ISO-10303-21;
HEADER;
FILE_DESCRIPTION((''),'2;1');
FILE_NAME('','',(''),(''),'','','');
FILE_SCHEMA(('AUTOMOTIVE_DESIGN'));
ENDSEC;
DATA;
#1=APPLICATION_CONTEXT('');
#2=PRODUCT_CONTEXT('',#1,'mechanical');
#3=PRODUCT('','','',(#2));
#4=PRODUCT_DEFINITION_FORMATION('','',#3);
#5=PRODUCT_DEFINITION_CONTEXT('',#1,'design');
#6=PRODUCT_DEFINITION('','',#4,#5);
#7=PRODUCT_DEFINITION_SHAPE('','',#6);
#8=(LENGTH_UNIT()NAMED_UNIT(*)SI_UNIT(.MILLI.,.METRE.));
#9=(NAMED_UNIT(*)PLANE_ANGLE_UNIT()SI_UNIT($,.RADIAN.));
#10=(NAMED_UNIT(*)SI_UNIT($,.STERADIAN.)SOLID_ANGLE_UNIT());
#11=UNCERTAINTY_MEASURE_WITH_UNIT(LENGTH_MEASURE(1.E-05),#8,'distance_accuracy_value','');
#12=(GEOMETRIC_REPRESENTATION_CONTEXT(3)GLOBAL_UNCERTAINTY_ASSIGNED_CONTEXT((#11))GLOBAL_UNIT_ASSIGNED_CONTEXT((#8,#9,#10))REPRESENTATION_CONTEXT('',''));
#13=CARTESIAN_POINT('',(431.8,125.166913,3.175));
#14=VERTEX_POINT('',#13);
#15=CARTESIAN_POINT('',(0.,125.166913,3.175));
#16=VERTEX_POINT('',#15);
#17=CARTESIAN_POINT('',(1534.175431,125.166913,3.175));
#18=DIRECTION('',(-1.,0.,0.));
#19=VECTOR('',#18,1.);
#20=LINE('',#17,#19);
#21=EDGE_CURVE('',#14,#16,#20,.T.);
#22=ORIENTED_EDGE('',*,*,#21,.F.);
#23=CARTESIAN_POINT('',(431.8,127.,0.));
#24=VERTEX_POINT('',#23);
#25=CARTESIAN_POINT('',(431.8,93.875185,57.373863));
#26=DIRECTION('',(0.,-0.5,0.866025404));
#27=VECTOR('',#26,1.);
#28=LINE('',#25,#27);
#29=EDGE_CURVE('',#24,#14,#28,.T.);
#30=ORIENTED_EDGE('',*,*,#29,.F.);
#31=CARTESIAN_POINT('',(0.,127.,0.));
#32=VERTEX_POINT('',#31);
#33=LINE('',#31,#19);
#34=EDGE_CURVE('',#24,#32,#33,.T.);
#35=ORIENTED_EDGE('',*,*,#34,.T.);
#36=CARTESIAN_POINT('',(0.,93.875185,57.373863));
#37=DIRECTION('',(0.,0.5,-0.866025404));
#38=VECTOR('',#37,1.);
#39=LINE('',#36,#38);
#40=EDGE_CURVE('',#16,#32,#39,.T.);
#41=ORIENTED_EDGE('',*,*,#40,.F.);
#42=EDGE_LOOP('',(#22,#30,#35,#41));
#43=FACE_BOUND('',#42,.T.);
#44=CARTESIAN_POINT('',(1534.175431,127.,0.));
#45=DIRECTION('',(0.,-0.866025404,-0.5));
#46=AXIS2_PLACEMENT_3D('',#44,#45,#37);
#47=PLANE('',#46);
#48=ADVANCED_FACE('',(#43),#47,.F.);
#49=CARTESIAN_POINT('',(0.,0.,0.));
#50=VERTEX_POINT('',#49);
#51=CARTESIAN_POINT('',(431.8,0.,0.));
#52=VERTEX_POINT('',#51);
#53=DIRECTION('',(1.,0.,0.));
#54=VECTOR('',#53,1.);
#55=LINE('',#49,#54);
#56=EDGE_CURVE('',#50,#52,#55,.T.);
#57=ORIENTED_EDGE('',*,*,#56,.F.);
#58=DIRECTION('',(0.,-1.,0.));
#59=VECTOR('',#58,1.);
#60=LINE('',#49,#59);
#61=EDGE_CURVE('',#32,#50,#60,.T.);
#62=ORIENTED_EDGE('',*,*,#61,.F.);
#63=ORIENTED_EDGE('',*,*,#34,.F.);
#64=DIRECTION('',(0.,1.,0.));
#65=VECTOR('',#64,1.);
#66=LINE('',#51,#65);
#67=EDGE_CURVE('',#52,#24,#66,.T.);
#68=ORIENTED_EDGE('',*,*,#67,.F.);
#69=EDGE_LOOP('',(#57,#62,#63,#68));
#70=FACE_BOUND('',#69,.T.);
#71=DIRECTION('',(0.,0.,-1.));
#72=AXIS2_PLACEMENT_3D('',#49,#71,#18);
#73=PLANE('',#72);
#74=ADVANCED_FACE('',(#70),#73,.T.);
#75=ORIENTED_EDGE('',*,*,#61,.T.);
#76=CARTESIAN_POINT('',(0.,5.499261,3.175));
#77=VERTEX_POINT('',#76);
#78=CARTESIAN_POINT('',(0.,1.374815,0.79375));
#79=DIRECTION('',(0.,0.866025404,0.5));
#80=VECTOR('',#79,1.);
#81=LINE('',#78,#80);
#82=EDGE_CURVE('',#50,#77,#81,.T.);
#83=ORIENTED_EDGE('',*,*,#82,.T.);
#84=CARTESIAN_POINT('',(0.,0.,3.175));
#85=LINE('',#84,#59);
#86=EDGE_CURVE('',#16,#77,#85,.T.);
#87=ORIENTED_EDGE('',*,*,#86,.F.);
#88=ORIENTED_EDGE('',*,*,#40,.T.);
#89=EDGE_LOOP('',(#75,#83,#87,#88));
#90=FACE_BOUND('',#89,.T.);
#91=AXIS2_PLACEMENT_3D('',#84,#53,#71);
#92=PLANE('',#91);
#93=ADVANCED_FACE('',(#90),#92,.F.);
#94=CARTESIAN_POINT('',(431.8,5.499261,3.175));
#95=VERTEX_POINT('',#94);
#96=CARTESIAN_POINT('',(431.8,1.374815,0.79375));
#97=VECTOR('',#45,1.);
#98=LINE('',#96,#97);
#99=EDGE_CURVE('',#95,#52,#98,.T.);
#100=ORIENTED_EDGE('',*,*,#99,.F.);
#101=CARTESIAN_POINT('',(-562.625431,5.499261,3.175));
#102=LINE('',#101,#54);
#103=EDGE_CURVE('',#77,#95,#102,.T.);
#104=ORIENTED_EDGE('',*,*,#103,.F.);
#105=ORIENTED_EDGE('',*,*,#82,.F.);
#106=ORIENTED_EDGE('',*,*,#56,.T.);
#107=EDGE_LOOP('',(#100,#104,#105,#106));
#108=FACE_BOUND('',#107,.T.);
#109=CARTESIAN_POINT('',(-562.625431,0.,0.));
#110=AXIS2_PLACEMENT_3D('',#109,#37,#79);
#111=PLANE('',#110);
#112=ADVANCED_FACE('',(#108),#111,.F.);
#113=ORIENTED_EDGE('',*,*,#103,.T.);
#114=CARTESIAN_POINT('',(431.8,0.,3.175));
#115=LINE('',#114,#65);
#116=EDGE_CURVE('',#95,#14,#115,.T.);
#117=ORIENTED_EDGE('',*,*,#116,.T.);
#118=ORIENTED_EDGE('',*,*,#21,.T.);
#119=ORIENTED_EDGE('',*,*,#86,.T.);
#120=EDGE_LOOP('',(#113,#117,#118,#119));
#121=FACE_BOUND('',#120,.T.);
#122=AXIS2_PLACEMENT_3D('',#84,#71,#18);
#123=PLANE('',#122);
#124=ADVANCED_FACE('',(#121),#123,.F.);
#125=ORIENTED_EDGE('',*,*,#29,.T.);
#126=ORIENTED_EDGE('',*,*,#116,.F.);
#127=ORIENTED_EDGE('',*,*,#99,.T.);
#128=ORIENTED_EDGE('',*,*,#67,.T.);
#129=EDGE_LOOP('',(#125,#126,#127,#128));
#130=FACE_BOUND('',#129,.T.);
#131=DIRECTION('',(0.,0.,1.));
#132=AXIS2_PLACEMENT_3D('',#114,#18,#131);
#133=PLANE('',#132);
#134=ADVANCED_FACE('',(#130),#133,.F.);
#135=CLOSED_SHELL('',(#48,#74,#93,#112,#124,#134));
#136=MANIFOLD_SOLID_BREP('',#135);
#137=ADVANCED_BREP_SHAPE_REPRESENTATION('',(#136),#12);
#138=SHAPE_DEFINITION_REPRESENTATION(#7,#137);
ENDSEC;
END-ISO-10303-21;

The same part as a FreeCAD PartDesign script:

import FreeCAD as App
import Part
import Sketcher
Q = App.Units.Quantity


def add_polygon(sketch, points):
    """Adds a closed chain of lines whose ends are joined by coincident constraints."""
    first, n = sketch.GeometryCount, len(points)
    for a, b in zip(points, points[1:] + points[:1]):
        sketch.addGeometry(Part.LineSegment(App.Vector(*a, 0), App.Vector(*b, 0)), False)
    for i in range(n):
        sketch.addConstraint(Sketcher.Constraint("Coincident", first + i, 2, first + (i + 1) % n, 1))

doc = App.newDocument("Part")
body = doc.addObject("PartDesign::Body", "Body")

sketch1 = body.newObject("Sketcher::SketchObject", "Sketch")
sketch1.AttachmentSupport = (doc.getObject("XY_Plane"), [""])
sketch1.MapMode = "FlatFace"
add_polygon(sketch1, [(0, 127), (0, 0), (431.8, 0), (431.8, 127)])
sketch1.addConstraint(Sketcher.Constraint("Vertical", 0))
sketch1.addConstraint(Sketcher.Constraint("Horizontal", 1))
sketch1.addConstraint(Sketcher.Constraint("Vertical", 2))
sketch1.addConstraint(Sketcher.Constraint("Horizontal", 3))
sketch1.addConstraint(Sketcher.Constraint("Coincident", 0, 2, -1, 1))
sketch1.addConstraint(Sketcher.Constraint("DistanceX", 1, 1, 1, 2, Q("17 in")))
sketch1.addConstraint(Sketcher.Constraint("DistanceY", 0, 2, 0, 1, Q("5 in")))
pad1 = body.newObject("PartDesign::Pad", "Pad")
pad1.Profile = sketch1
pad1.Length = Q("0.125 in")

sketch2 = body.newObject("Sketcher::SketchObject", "Sketch001")
sketch2.AttachmentSupport = (doc.getObject("YZ_Plane"), [""])
sketch2.MapMode = "FlatFace"
add_polygon(sketch2, [(0, 0), (-228.699437, -132.039681), (-492.778799, 325.359192), (-29.880665, 592.613555), (234.198698, 135.214681), (5.499261, 3.175)])
sketch2.addConstraint(Sketcher.Constraint("Coincident", 5, 2, -1, 1))
sketch2.addConstraint(Sketcher.Constraint("Perpendicular", 0, 1))
sketch2.addConstraint(Sketcher.Constraint("Perpendicular", 1, 2))
sketch2.addConstraint(Sketcher.Constraint("Perpendicular", 2, 3))
sketch2.addConstraint(Sketcher.Constraint("Perpendicular", 3, 4))
sketch2.addConstraint(Sketcher.Constraint("Parallel", 4, 5))
sketch2.addConstraint(Sketcher.Constraint("Equal", 0, 4))
sketch2.addConstraint(Sketcher.Constraint("Angle", 0, Q("-150 deg")))
sketch2.addConstraint(Sketcher.Constraint("Distance", 5, Q("0.25 in")))
sketch2.addConstraint(Sketcher.Constraint("DistanceX", 1, 2, -1, 1, Q("492.778799 mm")))
sketch2.addConstraint(Sketcher.Constraint("DistanceY", 0, 2, -1, 1, Q("132.039681 mm")))
pocket1 = body.newObject("PartDesign::Pocket", "Pocket")
pocket1.Profile = sketch2
pocket1.Type = "ThroughAll"
pocket1.Midplane = True

sketch3 = body.newObject("Sketcher::SketchObject", "Sketch002")
sketch3.AttachmentSupport = (doc.getObject("YZ_Plane"), [""])
sketch3.MapMode = "FlatFace"
sketch3.AttachmentOffset = App.Placement(App.Vector(0, 0, 17 * 25.4), App.Rotation())
add_polygon(sketch3, [(127, 0), (259.039681, -228.699437), (716.438555, 35.379926), (450.526105, 495.953799), (-6.872768, 231.874437), (125.166913, 3.175)])
sketch3.addConstraint(Sketcher.Constraint("PointOnObject", 5, 2, -1))
sketch3.addConstraint(Sketcher.Constraint("Perpendicular", 0, 1))
sketch3.addConstraint(Sketcher.Constraint("Perpendicular", 1, 2))
sketch3.addConstraint(Sketcher.Constraint("Perpendicular", 2, 3))
sketch3.addConstraint(Sketcher.Constraint("Perpendicular", 3, 4))
sketch3.addConstraint(Sketcher.Constraint("Parallel", 4, 5))
sketch3.addConstraint(Sketcher.Constraint("Equal", 0, 4))
sketch3.addConstraint(Sketcher.Constraint("DistanceX", -1, 1, 5, 2, Q("5 in")))
sketch3.addConstraint(Sketcher.Constraint("Angle", 0, Q("-60 deg")))
sketch3.addConstraint(Sketcher.Constraint("DistanceY", -1, 1, 4, 2, Q("0.125 in")))
sketch3.addConstraint(Sketcher.Constraint("Distance", 2, Q("531.824899 mm")))
sketch3.addConstraint(Sketcher.Constraint("DistanceY", -1, 1, 2, 2, Q("495.953799 mm")))
pocket2 = body.newObject("PartDesign::Pocket", "Pocket001")
pocket2.Profile = sketch3
pocket2.Type = "ThroughAll"
pocket2.Midplane = True

doc.recompute()
